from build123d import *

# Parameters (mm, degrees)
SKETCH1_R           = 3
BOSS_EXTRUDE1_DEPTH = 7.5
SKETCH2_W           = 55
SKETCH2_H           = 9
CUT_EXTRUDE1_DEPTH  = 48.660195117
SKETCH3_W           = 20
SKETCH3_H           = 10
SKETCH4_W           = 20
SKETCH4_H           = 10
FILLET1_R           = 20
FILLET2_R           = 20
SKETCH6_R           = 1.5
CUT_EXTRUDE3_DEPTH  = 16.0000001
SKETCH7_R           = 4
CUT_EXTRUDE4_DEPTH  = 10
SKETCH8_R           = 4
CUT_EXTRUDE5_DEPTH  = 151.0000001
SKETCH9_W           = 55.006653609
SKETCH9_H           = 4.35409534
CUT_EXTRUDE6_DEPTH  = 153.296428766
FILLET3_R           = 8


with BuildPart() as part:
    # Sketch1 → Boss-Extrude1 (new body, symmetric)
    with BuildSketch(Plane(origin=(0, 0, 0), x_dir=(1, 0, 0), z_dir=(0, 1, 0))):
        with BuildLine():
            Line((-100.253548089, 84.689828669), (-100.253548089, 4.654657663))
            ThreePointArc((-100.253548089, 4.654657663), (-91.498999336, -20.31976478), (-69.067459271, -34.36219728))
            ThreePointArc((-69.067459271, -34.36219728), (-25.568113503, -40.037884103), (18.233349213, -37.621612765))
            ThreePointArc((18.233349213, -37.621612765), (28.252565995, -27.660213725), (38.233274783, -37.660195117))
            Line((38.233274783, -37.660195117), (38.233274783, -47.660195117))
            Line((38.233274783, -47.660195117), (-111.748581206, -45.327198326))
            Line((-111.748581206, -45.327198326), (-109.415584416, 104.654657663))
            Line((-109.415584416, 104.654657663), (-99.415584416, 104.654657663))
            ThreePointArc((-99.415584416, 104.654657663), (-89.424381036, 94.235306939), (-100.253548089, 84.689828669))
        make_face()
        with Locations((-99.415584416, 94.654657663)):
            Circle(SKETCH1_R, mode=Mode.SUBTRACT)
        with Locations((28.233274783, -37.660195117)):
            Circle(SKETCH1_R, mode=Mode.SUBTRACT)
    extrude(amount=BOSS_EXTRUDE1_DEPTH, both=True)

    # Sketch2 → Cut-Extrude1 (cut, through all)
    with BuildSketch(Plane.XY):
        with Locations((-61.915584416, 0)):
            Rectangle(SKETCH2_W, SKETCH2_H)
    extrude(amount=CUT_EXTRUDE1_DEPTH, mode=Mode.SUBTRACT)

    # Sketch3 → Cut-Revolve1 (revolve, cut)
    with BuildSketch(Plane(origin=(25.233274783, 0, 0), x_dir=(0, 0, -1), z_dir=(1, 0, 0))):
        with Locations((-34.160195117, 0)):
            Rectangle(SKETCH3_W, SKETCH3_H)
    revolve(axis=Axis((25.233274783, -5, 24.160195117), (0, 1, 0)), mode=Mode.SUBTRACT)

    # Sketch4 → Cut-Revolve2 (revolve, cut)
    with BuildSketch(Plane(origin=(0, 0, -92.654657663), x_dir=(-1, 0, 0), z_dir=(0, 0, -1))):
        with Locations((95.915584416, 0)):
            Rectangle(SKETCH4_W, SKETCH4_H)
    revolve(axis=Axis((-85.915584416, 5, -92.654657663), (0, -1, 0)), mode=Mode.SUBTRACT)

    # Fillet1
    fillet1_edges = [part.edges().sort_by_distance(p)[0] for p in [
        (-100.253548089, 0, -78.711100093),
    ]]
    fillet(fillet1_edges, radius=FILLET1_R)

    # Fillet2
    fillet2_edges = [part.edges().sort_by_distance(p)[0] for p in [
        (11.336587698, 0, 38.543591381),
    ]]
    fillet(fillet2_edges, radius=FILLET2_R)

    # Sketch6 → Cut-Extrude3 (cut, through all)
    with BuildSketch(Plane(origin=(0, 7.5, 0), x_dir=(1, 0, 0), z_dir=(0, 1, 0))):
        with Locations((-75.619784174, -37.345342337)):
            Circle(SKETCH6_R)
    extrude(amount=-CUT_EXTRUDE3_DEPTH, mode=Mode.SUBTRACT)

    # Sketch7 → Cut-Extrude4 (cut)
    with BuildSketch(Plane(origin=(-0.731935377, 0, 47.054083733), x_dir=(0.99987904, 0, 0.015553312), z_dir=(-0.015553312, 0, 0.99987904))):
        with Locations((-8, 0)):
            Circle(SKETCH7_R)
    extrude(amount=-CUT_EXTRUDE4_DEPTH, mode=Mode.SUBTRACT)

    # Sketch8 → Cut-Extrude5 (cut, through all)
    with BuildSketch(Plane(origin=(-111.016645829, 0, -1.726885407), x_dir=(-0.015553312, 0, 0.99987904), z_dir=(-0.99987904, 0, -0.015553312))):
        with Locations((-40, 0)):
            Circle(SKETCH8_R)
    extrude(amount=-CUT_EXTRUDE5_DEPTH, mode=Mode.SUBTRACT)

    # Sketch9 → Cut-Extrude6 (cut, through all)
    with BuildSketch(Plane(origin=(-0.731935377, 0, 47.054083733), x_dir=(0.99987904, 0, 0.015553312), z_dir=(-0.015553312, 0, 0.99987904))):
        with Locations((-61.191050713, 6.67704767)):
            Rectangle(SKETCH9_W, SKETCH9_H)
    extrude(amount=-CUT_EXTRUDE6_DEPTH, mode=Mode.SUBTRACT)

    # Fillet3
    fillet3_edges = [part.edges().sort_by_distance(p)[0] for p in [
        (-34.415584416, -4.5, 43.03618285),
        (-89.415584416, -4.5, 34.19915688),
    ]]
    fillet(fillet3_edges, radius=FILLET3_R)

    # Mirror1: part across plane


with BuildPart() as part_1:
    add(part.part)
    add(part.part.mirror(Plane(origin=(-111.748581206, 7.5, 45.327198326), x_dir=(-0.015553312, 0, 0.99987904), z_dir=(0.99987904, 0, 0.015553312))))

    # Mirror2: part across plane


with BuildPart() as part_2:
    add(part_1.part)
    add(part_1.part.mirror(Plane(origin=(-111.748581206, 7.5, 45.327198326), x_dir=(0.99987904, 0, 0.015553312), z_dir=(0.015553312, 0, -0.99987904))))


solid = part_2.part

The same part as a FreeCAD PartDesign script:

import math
import FreeCAD as App
import Part
import Sketcher

V = App.Vector
Q = App.Units.Quantity


def edges_at(feature, points):
    """Names of the edges that pass closest to the given points."""
    edges = feature.Shape.Edges
    near = lambda p: min(range(len(edges)), key=lambda i: edges[i].distToShape(Part.Vertex(*p))[0])
    return sorted({f"Edge{near(p) + 1}" for p in points})


def add_polygon(sketch, points):
    """Adds a closed chain of lines whose ends are joined by coincident constraints."""
    first, n = sketch.GeometryCount, len(points)
    for a, b in zip(points, points[1:] + points[:1]):
        sketch.addGeometry(Part.LineSegment(App.Vector(*a, 0), App.Vector(*b, 0)), False)
    for i in range(n):
        sketch.addConstraint(Sketcher.Constraint("Coincident", first + i, 2, first + (i + 1) % n, 1))

doc = App.newDocument("Part")
body = doc.addObject("PartDesign::Body", "Body")

# Sketch on XZ plane
sketch1 = doc.addObject("Sketcher::SketchObject", "Sketch")
body.addObject(sketch1)
sketch1.AttachmentSupport = (doc.XZ_Plane, [""])
sketch1.MapMode = "FlatFace"
sketch1.addGeometry([
    Part.LineSegment(V(-100.3, -4.7, 0), V(-100.3, -84.7, 0)),  # 0
    Part.ArcOfCircle(Part.Circle(V(-99.4, -94.7, 0), V(0, 0, 1), 10), math.radians(-90), math.radians(95)),  # 1
    Part.LineSegment(V(-99.4, -104.7, 0), V(-109.4, -104.7, 0)),  # 2
    Part.LineSegment(V(-109.4, -104.7, 0), V(-111.7, 45.3, 0)),  # 3
    Part.LineSegment(V(-111.7, 45.3, 0), V(38.2, 47.7, 0)),  # 4
    Part.LineSegment(V(38.2, 47.7, 0), V(38.2, 37.7, 0)),  # 5
    Part.ArcOfCircle(Part.Circle(V(28.2, 37.7, 0), V(0, 0, 1), 10), math.radians(-180), math.radians(0)),  # 6
    Part.ArcOfCircle(Part.Circle(V(-16.7, -197.4, 0), V(0, 0, 1), 237.7), math.radians(82), math.radians(103)),  # 7
    Part.ArcOfCircle(Part.Circle(V(-60.3, -4.7, 0), V(0, 0, 1), 40), math.radians(103), math.radians(180)),  # 8
    Part.Circle(V(28.2, 37.7, 0), V(0, 0, 1), 3),  # 9
    Part.Circle(V(-99.4, -94.7, 0), V(0, 0, 1), 3),  # 10
], False)
sketch1.addConstraint([
    Sketcher.Constraint("Coincident", 0, 2, 1, 2),
    Sketcher.Constraint("Tangent", 1, 1, 2, 1),
    Sketcher.Constraint("Coincident", 2, 2, 3, 1),
    Sketcher.Constraint("Coincident", 3, 2, 4, 1),
    Sketcher.Constraint("Coincident", 4, 2, 5, 1),
    Sketcher.Constraint("Tangent", 5, 2, 6, 2),
    Sketcher.Constraint("Coincident", 6, 1, 7, 1),
    Sketcher.Constraint("Tangent", 7, 2, 8, 1),
    Sketcher.Constraint("Tangent", 8, 2, 0, 1),
    Sketcher.Constraint("Vertical", 0),
    Sketcher.Constraint("Horizontal", 2),
    Sketcher.Constraint("Vertical", 5),
    Sketcher.Constraint("Coincident", 9, 3, 6, 3),
    Sketcher.Constraint("Coincident", 10, 3, 1, 3),
    Sketcher.Constraint("Equal", 1, 6),
    Sketcher.Constraint("Equal", 9, 10),
    Sketcher.Constraint("Perpendicular", 3, 4),
    Sketcher.Constraint("Equal", 2, 5),
    Sketcher.Constraint("Equal", 3, 4),
    Sketcher.Constraint("Diameter", 9, Q("6 mm")),
    Sketcher.Constraint("Radius", 1, Q("10 mm")),
    Sketcher.Constraint("Radius", 8, Q("40 mm")),
    Sketcher.Constraint("DistanceX", 2, 2, 2, 1, Q("10 mm")),
    Sketcher.Constraint("Distance", 3, Q("150 mm")),
    Sketcher.Constraint("DistanceY", 1, 3, 8, 3, Q("90 mm")),
    Sketcher.Constraint("Radius", 7, Q("237.651581 mm")),
    Sketcher.Constraint("DistanceY", 0, 2, 0, 1, Q("80.035171 mm")),
    Sketcher.Constraint("DistanceY", -1, 1, 3, 2, Q("45.327198 mm")),
    Sketcher.Constraint("DistanceX", 7, 3, -1, 1, Q("16.701461 mm")),
    Sketcher.Constraint("DistanceX", 8, 3, -1, 1, Q("60.253548 mm")),
    Sketcher.Constraint("DistanceY", 0, 2, -1, 1, Q("84.689829 mm")),
])
pad1 = doc.addObject("PartDesign::Pad", "Pad")
body.addObject(pad1)
pad1.Profile = sketch1
pad1.Length = 15
pad1.Midplane = True

# Sketch on XY plane
sketch2 = doc.addObject("Sketcher::SketchObject", "Sketch001")
body.addObject(sketch2)
sketch2.AttachmentSupport = (doc.XY_Plane, [""])
sketch2.MapMode = "FlatFace"
add_polygon(sketch2, [(-89, 4), (-89, -4), (-34, -4), (-34, 4)])  # lines 0-3
sketch2.addConstraint([
    Sketcher.Constraint("Vertical", 0),
    Sketcher.Constraint("Horizontal", 1),
    Sketcher.Constraint("Vertical", 2),
    Sketcher.Constraint("Horizontal", 3),
    Sketcher.Constraint("DistanceX", 1, 1, 1, 2, Q("55 mm")),
    Sketcher.Constraint("DistanceY", 0, 2, 0, 1, Q("9 mm")),
    Sketcher.Constraint("DistanceY", 0, 2, -1, 1, Q("4.5 mm")),
    Sketcher.Constraint("DistanceX", 0, 2, -1, 1, Q("89.415584 mm")),
])
pocket1 = doc.addObject("PartDesign::Pocket", "Pocket")
body.addObject(pocket1)
pocket1.Profile = sketch2
pocket1.Type = "ThroughAll"
pocket1.Reversed = True

# Sketch on YZ plane
sketch3 = doc.addObject("Sketcher::SketchObject", "Sketch002")
body.addObject(sketch3)
sketch3.AttachmentSupport = (doc.YZ_Plane, [""])
sketch3.MapMode = "FlatFace"
sketch3.AttachmentOffset = App.Placement(V(0, 0, 25.233275), App.Rotation())
add_polygon(sketch3, [(5, 44), (-5, 44), (-5, 24), (5, 24)])  # lines 0-3
sketch3.addGeometry(Part.LineSegment(V(-5, 24, 0), V(5, 24, 0)), True)  # axis
sketch3.addConstraint([
    Sketcher.Constraint("Horizontal", 0),
    Sketcher.Constraint("Vertical", 1),
    Sketcher.Constraint("Horizontal", 2),
    Sketcher.Constraint("Vertical", 3),
    Sketcher.Constraint("Horizontal", 4),
    Sketcher.Constraint("Coincident", 4, 1, 1, 2),
    Sketcher.Constraint("Vertical", 3, 2, 4, 2),
    Sketcher.Constraint("DistanceX", 0, 2, 0, 1, Q("10 mm")),
    Sketcher.Constraint("DistanceY", 1, 2, 1, 1, Q("20 mm")),
    Sketcher.Constraint("DistanceX", 0, 2, -1, 1, Q("5 mm")),
    Sketcher.Constraint("DistanceY", -1, 1, 0, 2, Q("44.160195 mm")),
])
groove = doc.addObject("PartDesign::Groove", "Groove")
body.addObject(groove)
groove.Profile = sketch3
groove.ReferenceAxis = (sketch3, ["Axis0"])
groove.Angle = 360

# Sketch on XY plane
sketch4 = doc.addObject("Sketcher::SketchObject", "Sketch003")
body.addObject(sketch4)
sketch4.AttachmentSupport = (doc.XY_Plane, [""])
sketch4.MapMode = "FlatFace"
sketch4.AttachmentOffset = App.Placement(V(0, 0, -92.654658), App.Rotation())
add_polygon(sketch4, [(-86, 5), (-86, -5), (-106, -5), (-106, 5)])  # lines 0-3
sketch4.addGeometry(Part.LineSegment(V(-86, 5, 0), V(-86, -5, 0)), True)  # axis
sketch4.addConstraint([
    Sketcher.Constraint("Vertical", 0),
    Sketcher.Constraint("Horizontal", 1),
    Sketcher.Constraint("Vertical", 2),
    Sketcher.Constraint("Horizontal", 3),
    Sketcher.Constraint("Vertical", 4),
    Sketcher.Constraint("Coincident", 4, 1, 3, 2),
    Sketcher.Constraint("Horizontal", 1, 2, 4, 2),
    Sketcher.Constraint("DistanceX", 1, 2, 1, 1, Q("20 mm")),
    Sketcher.Constraint("DistanceY", 0, 2, 0, 1, Q("10 mm")),
    Sketcher.Constraint("DistanceY", 0, 2, -1, 1, Q("5 mm")),
    Sketcher.Constraint("DistanceX", 0, 2, -1, 1, Q("85.915584 mm")),
])
groove2 = doc.addObject("PartDesign::Groove", "Groove001")
body.addObject(groove2)
groove2.Profile = sketch4
groove2.ReferenceAxis = (sketch4, ["Axis0"])
groove2.Angle = 360
doc.recompute()

fillet = doc.addObject("PartDesign::Fillet", "Fillet")
body.addObject(fillet)
fillet.Base = (groove2, edges_at(groove2, [(-100.254, 0, -78.711)]))
fillet.Radius = 20
doc.recompute()

fillet2 = doc.addObject("PartDesign::Fillet", "Fillet001")
body.addObject(fillet2)
fillet2.Base = (fillet, edges_at(fillet, [(11.337, 0, 38.544)]))
fillet2.Radius = 20

# Sketch on XZ plane
sketch5 = doc.addObject("Sketcher::SketchObject", "Sketch004")
body.addObject(sketch5)
sketch5.AttachmentSupport = (doc.XZ_Plane, [""])
sketch5.MapMode = "FlatFace"
sketch5.AttachmentOffset = App.Placement(V(0, 0, -7.5), App.Rotation())
sketch5.addGeometry(Part.Circle(V(-75.6, 37.3, 0), V(0, 0, 1), 1.5), False)
sketch5.addConstraint([
    Sketcher.Constraint("Diameter", 0, Q("3 mm")),
    Sketcher.Constraint("DistanceX", 0, 3, -1, 1, Q("75.619784 mm")),
    Sketcher.Constraint("DistanceY", -1, 1, 0, 3, Q("37.345342 mm")),
])
pocket2 = doc.addObject("PartDesign::Pocket", "Pocket001")
body.addObject(pocket2)
pocket2.Profile = sketch5
pocket2.Type = "ThroughAll"
pocket2.Reversed = True

# Sketch on an angled plane
sketch6 = doc.addObject("Sketcher::SketchObject", "Sketch005")
body.addObject(sketch6)
sketch6.Placement = App.Placement(V(-0.731935, 0, 47.054084), App.Rotation(V(0.99987904, 0, 0.015553312), V(0, 1, 0), V(-0.015553312, 0, 0.99987904), "ZXY"))
sketch6.addGeometry(Part.Circle(V(-8, 0, 0), V(0, 0, 1), 4), False)
sketch6.addConstraint([
    Sketcher.Constraint("PointOnObject", 0, 3, -1),
    Sketcher.Constraint("Diameter", 0, Q("8 mm")),
    Sketcher.Constraint("DistanceX", 0, 3, -1, 1, Q("8 mm")),
])
pocket3 = doc.addObject("PartDesign::Pocket", "Pocket002")
body.addObject(pocket3)
pocket3.Profile = sketch6
pocket3.Length = 10

# Sketch on an angled plane
sketch7 = doc.addObject("Sketcher::SketchObject", "Sketch006")
body.addObject(sketch7)
sketch7.Placement = App.Placement(V(-111.016646, 0, -1.726885), App.Rotation(V(-0.015553312, 0, 0.99987904), V(0, 1, 0), V(-0.99987904, 0, -0.015553312), "ZXY"))
sketch7.addGeometry(Part.Circle(V(-40, 0, 0), V(0, 0, 1), 4), False)
sketch7.addConstraint([
    Sketcher.Constraint("PointOnObject", 0, 3, -1),
    Sketcher.Constraint("Diameter", 0, Q("8 mm")),
    Sketcher.Constraint("DistanceX", 0, 3, -1, 1, Q("40 mm")),
])
pocket4 = doc.addObject("PartDesign::Pocket", "Pocket003")
body.addObject(pocket4)
pocket4.Profile = sketch7
pocket4.Type = "ThroughAll"

# Sketch on an angled plane
sketch8 = doc.addObject("Sketcher::SketchObject", "Sketch007")
body.addObject(sketch8)
sketch8.Placement = App.Placement(V(-0.731935, 0, 47.054084), App.Rotation(V(0.99987904, 0, 0.015553312), V(0, 1, 0), V(-0.015553312, 0, 0.99987904), "ZXY"))
add_polygon(sketch8, [(-88.7, 8.9), (-88.7, 4.5), (-33.7, 4.5), (-33.7, 8.9)])  # lines 0-3
sketch8.addConstraint([
    Sketcher.Constraint("Vertical", 0),
    Sketcher.Constraint("Horizontal", 1),
    Sketcher.Constraint("Vertical", 2),
    Sketcher.Constraint("Horizontal", 3),
    Sketcher.Constraint("DistanceY", -1, 1, 0, 2, Q("4.5 mm")),
    Sketcher.Constraint("DistanceX", 1, 1, 1, 2, Q("55.006654 mm")),
    Sketcher.Constraint("DistanceY", 0, 2, 0, 1, Q("4.354095 mm")),
    Sketcher.Constraint("DistanceX", 0, 2, -1, 1, Q("88.694378 mm")),
])
pocket5 = doc.addObject("PartDesign::Pocket", "Pocket004")
body.addObject(pocket5)
pocket5.Profile = sketch8
pocket5.Type = "ThroughAll"
doc.recompute()

fillet3 = doc.addObject("PartDesign::Fillet", "Fillet002")
body.addObject(fillet3)
fillet3.Base = (pocket5, edges_at(pocket5, [(-34.416, -4.5, 43.036), (-89.416, -4.5, 34.199)]))
fillet3.Radius = 8
body2 = doc.addObject("PartDesign::Body", "Body001")
doc.recompute()

body2.BaseFeature = body
doc.recompute()

mirroring = doc.addObject("Part::Mirroring", "Mirroring")
mirroring.Source = body
mirroring.Base = V(-111.748581, 7.5, 45.327198)
mirroring.Normal = V(0.99987904, 0, 0.015553312)
body3 = doc.addObject("PartDesign::Body", "Body002")
body3.BaseFeature = mirroring
boolean = doc.addObject("PartDesign::Boolean", "Boolean")
body2.addObject(boolean)
boolean.Type = "Fuse"
boolean.addObjects([body3])
doc.recompute()
body4 = doc.addObject("PartDesign::Body", "Body003")
doc.recompute()

body4.BaseFeature = body2
doc.recompute()

mirroring2 = doc.addObject("Part::Mirroring", "Mirroring001")
mirroring2.Source = body2
mirroring2.Base = V(-111.748581, 7.5, 45.327198)
mirroring2.Normal = V(0.015553312, 0, -0.99987904)
body5 = doc.addObject("PartDesign::Body", "Body004")
body5.BaseFeature = mirroring2
boolean2 = doc.addObject("PartDesign::Boolean", "Boolean001")
body4.addObject(boolean2)
boolean2.Type = "Fuse"
boolean2.addObjects([body5])
doc.recompute()
mirroring.Visibility = False
mirroring2.Visibility = False

doc.recompute()
